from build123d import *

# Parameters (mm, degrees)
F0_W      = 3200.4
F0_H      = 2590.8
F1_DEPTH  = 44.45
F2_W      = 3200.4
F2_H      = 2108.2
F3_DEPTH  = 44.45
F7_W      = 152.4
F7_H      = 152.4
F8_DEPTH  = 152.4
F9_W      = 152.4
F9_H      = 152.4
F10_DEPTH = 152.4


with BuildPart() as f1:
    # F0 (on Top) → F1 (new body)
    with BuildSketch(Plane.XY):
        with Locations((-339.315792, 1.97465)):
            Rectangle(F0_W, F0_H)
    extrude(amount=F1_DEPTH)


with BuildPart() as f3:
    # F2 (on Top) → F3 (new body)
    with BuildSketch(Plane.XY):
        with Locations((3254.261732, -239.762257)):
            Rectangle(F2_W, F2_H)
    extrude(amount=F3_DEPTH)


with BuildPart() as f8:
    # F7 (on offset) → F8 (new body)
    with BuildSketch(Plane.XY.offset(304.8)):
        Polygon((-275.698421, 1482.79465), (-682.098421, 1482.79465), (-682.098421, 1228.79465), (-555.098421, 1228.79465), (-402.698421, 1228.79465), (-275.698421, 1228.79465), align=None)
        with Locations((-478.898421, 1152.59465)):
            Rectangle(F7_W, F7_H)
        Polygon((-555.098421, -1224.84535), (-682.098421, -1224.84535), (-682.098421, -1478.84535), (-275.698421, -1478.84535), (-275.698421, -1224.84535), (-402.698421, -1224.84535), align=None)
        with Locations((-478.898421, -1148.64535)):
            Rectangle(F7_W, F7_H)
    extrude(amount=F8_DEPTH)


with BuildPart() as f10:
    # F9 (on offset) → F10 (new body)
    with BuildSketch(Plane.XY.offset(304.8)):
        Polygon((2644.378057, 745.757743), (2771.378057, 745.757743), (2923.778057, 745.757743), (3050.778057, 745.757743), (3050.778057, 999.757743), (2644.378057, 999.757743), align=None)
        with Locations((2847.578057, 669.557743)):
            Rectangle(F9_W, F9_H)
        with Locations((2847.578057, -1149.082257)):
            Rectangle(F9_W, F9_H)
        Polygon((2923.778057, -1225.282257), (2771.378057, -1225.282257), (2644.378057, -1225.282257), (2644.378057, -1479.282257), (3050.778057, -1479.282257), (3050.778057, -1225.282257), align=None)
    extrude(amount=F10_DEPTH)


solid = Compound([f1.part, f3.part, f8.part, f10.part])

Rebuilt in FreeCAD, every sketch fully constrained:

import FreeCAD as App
import Part
import Sketcher
Q = App.Units.Quantity


def add_polygon(sketch, points):
    """Adds a closed chain of lines whose ends are joined by coincident constraints."""
    first, n = sketch.GeometryCount, len(points)
    for a, b in zip(points, points[1:] + points[:1]):
        sketch.addGeometry(Part.LineSegment(App.Vector(*a, 0), App.Vector(*b, 0)), False)
    for i in range(n):
        sketch.addConstraint(Sketcher.Constraint("Coincident", first + i, 2, first + (i + 1) % n, 1))

doc = App.newDocument("Part")
params = doc.addObject("Spreadsheet::Sheet", "Params")
for row, (alias, value) in enumerate([
    ("sketch1_width", "126 in"),
    ("sketch1_height", "102 in"),
    ("pad1_length", "1.75 in"),
    ("sketch2_width", "126 in"),
    ("sketch2_height", "83 in"),
    ("pad2_length", "1.75 in"),
    ("sketch3_width", "16 in"),
    ("sketch3_width2", "5 in"),
    ("sketch3_height", "10 in"),
    ("pad3_length", "6 in"),
    ("sketch4_width", "5 in"),
    ("sketch4_width2", "6 in"),
    ("sketch4_height", "10 in"),
    ("pad4_length", "6 in"),
], start=1):
    params.set(f"A{row}", alias)
    params.set(f"B{row}", "=" + value)
    params.setAlias(f"B{row}", alias)

body = doc.addObject("PartDesign::Body", "Body")

# Sketch on XY plane
sketch1 = body.newObject("Sketcher::SketchObject", "Sketch")
sketch1.AttachmentSupport = (doc.getObject("XY_Plane"), [""])
sketch1.MapMode = "FlatFace"
add_polygon(sketch1, [(-1940, 1297), (-1940, -1293), (1261, -1293), (1261, 1297)])  # lines 0-3
sketch1.addConstraint([
    Sketcher.Constraint("Vertical", 0),
    Sketcher.Constraint("Horizontal", 1),
    Sketcher.Constraint("Vertical", 2),
    Sketcher.Constraint("Horizontal", 3),
    Sketcher.Constraint("DistanceX", 1, 1, 1, 2, Q("126 in")),
    Sketcher.Constraint("DistanceY", 0, 2, 0, 1, Q("102 in")),
    Sketcher.Constraint("DistanceX", 0, 2, -1, 1, 1939.515792),
    Sketcher.Constraint("DistanceY", 0, 2, -1, 1, 1293.42535),
])
sketch1.setExpression("Constraints[8]", "Params.sketch1_width")
sketch1.setExpression("Constraints[9]", "Params.sketch1_height")
pad1 = body.newObject("PartDesign::Pad", "Pad")
pad1.Profile = sketch1
pad1.setExpression("Length", "Params.pad1_length")
body2 = doc.addObject("PartDesign::Body", "Body001")

# Sketch on XY plane
sketch2 = body2.newObject("Sketcher::SketchObject", "Sketch001")
sketch2.AttachmentSupport = (doc.getObject("XY_Plane001"), [""])
sketch2.MapMode = "FlatFace"
add_polygon(sketch2, [(1654, 814), (1654, -1294), (4854, -1294), (4854, 814)])  # lines 0-3
sketch2.addConstraint([
    Sketcher.Constraint("Vertical", 0),
    Sketcher.Constraint("Horizontal", 1),
    Sketcher.Constraint("Vertical", 2),
    Sketcher.Constraint("Horizontal", 3),
    Sketcher.Constraint("DistanceX", 1, 1, 1, 2, Q("126 in")),
    Sketcher.Constraint("DistanceY", 0, 2, 0, 1, Q("83 in")),
    Sketcher.Constraint("DistanceX", -1, 1, 0, 2, 1654.061732),
    Sketcher.Constraint("DistanceY", 0, 2, -1, 1, 1293.862257),
])
sketch2.setExpression("Constraints[8]", "Params.sketch2_width")
sketch2.setExpression("Constraints[9]", "Params.sketch2_height")
pad2 = body2.newObject("PartDesign::Pad", "Pad001")
pad2.Profile = sketch2
pad2.setExpression("Length", "Params.pad2_length")
body3 = doc.addObject("PartDesign::Body", "Body002")
body3.AllowCompound = True

# Sketch on XY plane
sketch3 = body3.newObject("Sketcher::SketchObject", "Sketch002")
sketch3.AttachmentSupport = (doc.getObject("XY_Plane002"), [""])
sketch3.MapMode = "FlatFace"
sketch3.AttachmentOffset = App.Placement(App.Vector(0, 0, 12 * 25.4), App.Rotation())
add_polygon(sketch3, [(-276, 1483), (-682, 1483), (-682, 1229), (-555, 1229), (-555, 1076), (-403, 1076), (-403, 1229), (-276, 1229)])  # lines 0-7
add_polygon(sketch3, [(-682, -1225), (-682, -1479), (-276, -1479), (-276, -1225), (-403, -1225), (-403, -1072), (-555, -1072), (-555, -1225)])  # lines 8-15
sketch3.addConstraint([
    Sketcher.Constraint("Horizontal", 0),
    Sketcher.Constraint("Vertical", 1),
    Sketcher.Constraint("Horizontal", 2),
    Sketcher.Constraint("Vertical", 3),
    Sketcher.Constraint("Horizontal", 4),
    Sketcher.Constraint("Vertical", 5),
    Sketcher.Constraint("Horizontal", 6),
    Sketcher.Constraint("Vertical", 7),
    Sketcher.Constraint("Vertical", 8),
    Sketcher.Constraint("Horizontal", 9),
    Sketcher.Constraint("Vertical", 10),
    Sketcher.Constraint("Horizontal", 11),
    Sketcher.Constraint("Vertical", 12),
    Sketcher.Constraint("Horizontal", 13),
    Sketcher.Constraint("Vertical", 14),
    Sketcher.Constraint("Horizontal", 15),
    Sketcher.Constraint("Horizontal", 2, 2, 5, 2),
    Sketcher.Constraint("Horizontal", 11, 2, 14, 2),
    Sketcher.Constraint("Vertical", 1, 2, 8, 2),
    Sketcher.Constraint("Vertical", 7, 2, 9, 2),
    Sketcher.Constraint("Vertical", 5, 2, 11, 2),
    Sketcher.Constraint("Vertical", 3, 2, 13, 2),
    Sketcher.Constraint("Equal", 2, 6),
    Sketcher.Constraint("Equal", 13, 3),
    Sketcher.Constraint("Equal", 7, 8),
    Sketcher.Constraint("Equal", 5, 12),
    Sketcher.Constraint("DistanceX", 0, 2, 0, 1, Q("16 in")),
    Sketcher.Constraint("DistanceX", 2, 1, 2, 2, Q("5 in")),
    Sketcher.Constraint("DistanceY", 1, 2, 1, 1, Q("10 in")),
    Sketcher.Constraint("DistanceY", 8, 2, 3, 2, Q("100.6 in")),
    Sketcher.Constraint("DistanceX", 0, 2, -1, 1, 682.098421),
    Sketcher.Constraint("DistanceY", -1, 1, 0, 2, 1482.79465),
])
sketch3.setExpression("Constraints[42]", "Params.sketch3_width")
sketch3.setExpression("Constraints[43]", "Params.sketch3_width2")
sketch3.setExpression("Constraints[44]", "Params.sketch3_height")
pad3 = body3.newObject("PartDesign::Pad", "Pad002")
pad3.Profile = sketch3
pad3.setExpression("Length", "Params.pad3_length")
body4 = doc.addObject("PartDesign::Body", "Body003")
body4.AllowCompound = True

# Sketch on XY plane
sketch4 = body4.newObject("Sketcher::SketchObject", "Sketch003")
sketch4.AttachmentSupport = (doc.getObject("XY_Plane003"), [""])
sketch4.MapMode = "FlatFace"
sketch4.AttachmentOffset = App.Placement(App.Vector(0, 0, 12 * 25.4), App.Rotation())
add_polygon(sketch4, [(2644, 746), (2771, 746), (2771, 593), (2924, 593), (2924, 746), (3051, 746), (3051, 1000), (2644, 1000)])  # lines 0-7
add_polygon(sketch4, [(2771, -1073), (2771, -1225), (2644, -1225), (2644, -1479), (3051, -1479), (3051, -1225), (2924, -1225), (2924, -1073)])  # lines 8-15
sketch4.addConstraint([
    Sketcher.Constraint("Horizontal", 0),
    Sketcher.Constraint("Vertical", 1),
    Sketcher.Constraint("Horizontal", 2),
    Sketcher.Constraint("Vertical", 3),
    Sketcher.Constraint("Horizontal", 4),
    Sketcher.Constraint("Vertical", 5),
    Sketcher.Constraint("Horizontal", 6),
    Sketcher.Constraint("Vertical", 7),
    Sketcher.Constraint("Vertical", 8),
    Sketcher.Constraint("Horizontal", 9),
    Sketcher.Constraint("Vertical", 10),
    Sketcher.Constraint("Horizontal", 11),
    Sketcher.Constraint("Vertical", 12),
    Sketcher.Constraint("Horizontal", 13),
    Sketcher.Constraint("Vertical", 14),
    Sketcher.Constraint("Horizontal", 15),
    Sketcher.Constraint("Horizontal", 0, 2, 3, 2),
    Sketcher.Constraint("Horizontal", 9, 2, 12, 2),
    Sketcher.Constraint("Vertical", 1, 2, 8, 2),
    Sketcher.Constraint("Vertical", 7, 2, 9, 2),
    Sketcher.Constraint("Vertical", 5, 2, 11, 2),
    Sketcher.Constraint("Vertical", 3, 2, 13, 2),
    Sketcher.Constraint("Equal", 0, 4),
    Sketcher.Constraint("Equal", 15, 1),
    Sketcher.Constraint("Equal", 3, 8),
    Sketcher.Constraint("Equal", 7, 10),
    Sketcher.Constraint("DistanceX", 0, 1, 0, 2, Q("5 in")),
    Sketcher.Constraint("DistanceX", 2, 1, 2, 2, Q("6 in")),
    Sketcher.Constraint("DistanceY", 5, 1, 5, 2, Q("10 in")),
    Sketcher.Constraint("DistanceY", 8, 2, 1, 2, Q("71.6 in")),
    Sketcher.Constraint("DistanceX", -1, 1, 0, 2, 2771.378057),
    Sketcher.Constraint("DistanceY", -1, 1, 0, 2, 745.757743),
])
sketch4.setExpression("Constraints[42]", "Params.sketch4_width")
sketch4.setExpression("Constraints[43]", "Params.sketch4_width2")
sketch4.setExpression("Constraints[44]", "Params.sketch4_height")
pad4 = body4.newObject("PartDesign::Pad", "Pad003")
pad4.Profile = sketch4
pad4.setExpression("Length", "Params.pad4_length")

doc.recompute()
